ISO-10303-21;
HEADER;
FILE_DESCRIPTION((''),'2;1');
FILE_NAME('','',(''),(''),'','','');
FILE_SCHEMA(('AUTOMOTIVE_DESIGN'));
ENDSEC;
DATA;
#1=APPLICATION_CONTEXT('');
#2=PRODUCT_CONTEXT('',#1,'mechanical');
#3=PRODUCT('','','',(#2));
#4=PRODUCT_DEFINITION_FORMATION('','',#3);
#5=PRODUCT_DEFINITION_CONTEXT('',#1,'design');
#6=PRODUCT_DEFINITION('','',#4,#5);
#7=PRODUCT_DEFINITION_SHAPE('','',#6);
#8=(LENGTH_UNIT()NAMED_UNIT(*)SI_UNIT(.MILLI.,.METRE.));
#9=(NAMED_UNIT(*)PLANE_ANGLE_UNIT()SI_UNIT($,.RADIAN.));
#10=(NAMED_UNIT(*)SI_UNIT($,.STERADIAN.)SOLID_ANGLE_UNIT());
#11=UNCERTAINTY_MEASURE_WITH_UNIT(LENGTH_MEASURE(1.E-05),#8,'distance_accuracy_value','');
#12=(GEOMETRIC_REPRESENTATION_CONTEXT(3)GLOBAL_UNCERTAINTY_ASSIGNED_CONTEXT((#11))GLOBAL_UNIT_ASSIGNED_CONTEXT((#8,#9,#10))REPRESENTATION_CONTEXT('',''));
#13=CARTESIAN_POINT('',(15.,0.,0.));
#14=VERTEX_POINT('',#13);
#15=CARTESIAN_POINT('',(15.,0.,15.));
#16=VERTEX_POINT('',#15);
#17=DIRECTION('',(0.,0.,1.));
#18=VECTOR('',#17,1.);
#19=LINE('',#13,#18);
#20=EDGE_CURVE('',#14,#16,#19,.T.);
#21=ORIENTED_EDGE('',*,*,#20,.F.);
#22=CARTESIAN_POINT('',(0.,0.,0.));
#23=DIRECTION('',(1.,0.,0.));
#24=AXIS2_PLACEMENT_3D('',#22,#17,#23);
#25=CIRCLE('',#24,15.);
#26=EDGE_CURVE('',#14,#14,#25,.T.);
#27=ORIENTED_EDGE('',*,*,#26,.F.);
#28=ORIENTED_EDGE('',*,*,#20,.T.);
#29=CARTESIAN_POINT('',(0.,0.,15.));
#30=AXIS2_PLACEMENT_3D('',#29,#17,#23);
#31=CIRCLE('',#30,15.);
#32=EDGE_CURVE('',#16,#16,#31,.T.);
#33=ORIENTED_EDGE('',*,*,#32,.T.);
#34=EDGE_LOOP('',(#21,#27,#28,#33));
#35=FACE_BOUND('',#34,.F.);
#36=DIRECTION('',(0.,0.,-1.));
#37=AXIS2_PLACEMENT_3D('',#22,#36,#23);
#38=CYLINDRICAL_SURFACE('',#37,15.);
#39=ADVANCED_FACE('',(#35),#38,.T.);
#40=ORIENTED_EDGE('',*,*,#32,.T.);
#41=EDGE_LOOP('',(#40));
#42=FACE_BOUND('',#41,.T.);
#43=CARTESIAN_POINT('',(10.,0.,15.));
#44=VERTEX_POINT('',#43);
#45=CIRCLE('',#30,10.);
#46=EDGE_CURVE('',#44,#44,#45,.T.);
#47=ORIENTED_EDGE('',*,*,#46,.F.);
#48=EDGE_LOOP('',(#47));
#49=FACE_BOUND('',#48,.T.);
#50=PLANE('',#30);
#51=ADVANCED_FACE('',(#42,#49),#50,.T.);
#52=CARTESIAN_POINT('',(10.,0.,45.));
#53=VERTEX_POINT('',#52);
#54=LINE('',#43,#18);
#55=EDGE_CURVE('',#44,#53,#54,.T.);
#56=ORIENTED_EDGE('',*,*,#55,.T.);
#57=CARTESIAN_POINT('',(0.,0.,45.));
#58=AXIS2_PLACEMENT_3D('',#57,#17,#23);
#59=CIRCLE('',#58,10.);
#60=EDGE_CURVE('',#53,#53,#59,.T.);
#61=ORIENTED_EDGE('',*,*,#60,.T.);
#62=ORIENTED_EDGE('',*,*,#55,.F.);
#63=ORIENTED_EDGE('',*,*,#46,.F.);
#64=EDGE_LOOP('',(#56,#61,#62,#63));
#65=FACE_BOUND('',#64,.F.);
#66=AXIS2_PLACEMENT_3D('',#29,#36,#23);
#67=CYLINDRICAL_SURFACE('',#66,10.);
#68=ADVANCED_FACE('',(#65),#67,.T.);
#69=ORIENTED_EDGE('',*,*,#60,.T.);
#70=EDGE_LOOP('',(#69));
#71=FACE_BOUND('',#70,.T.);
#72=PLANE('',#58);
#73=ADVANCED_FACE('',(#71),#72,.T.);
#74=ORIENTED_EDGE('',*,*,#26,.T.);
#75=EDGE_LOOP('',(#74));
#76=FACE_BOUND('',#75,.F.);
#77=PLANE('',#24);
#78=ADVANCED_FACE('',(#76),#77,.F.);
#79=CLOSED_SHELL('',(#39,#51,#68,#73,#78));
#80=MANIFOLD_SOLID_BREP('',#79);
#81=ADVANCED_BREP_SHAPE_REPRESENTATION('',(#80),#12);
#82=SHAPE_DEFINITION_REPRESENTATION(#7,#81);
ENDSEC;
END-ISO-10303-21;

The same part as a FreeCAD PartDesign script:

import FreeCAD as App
import Part
import Sketcher

doc = App.newDocument("Part")
params = doc.addObject("Spreadsheet::Sheet", "Params")
for row, (alias, value) in enumerate([
    ("sketch1_diameter", "30 mm"),
    ("pad1_length", "15 mm"),
    ("sketch2_diameter", "20 mm"),
    ("pad2_length", "30 mm"),
], start=1):
    params.set(f"A{row}", alias)
    params.set(f"B{row}", "=" + value)
    params.setAlias(f"B{row}", alias)

body = doc.addObject("PartDesign::Body", "Body")

# Sketch on XY plane
sketch1 = body.newObject("Sketcher::SketchObject", "Sketch")
sketch1.AttachmentSupport = (doc.getObject("XY_Plane"), [""])
sketch1.MapMode = "FlatFace"
sketch1.addGeometry(Part.Circle(App.Vector(0, 0, 0), App.Vector(0, 0, 1), 15), False)
sketch1.addConstraint([
    Sketcher.Constraint("Coincident", 0, 3, -1, 1),
    Sketcher.Constraint("Diameter", 0, 30.0),
])
sketch1.setExpression("Constraints[1]", "Params.sketch1_diameter")
pad1 = body.newObject("PartDesign::Pad", "Pad")
pad1.Profile = sketch1
pad1.setExpression("Length", "Params.pad1_length")

# Sketch on XY plane
sketch2 = body.newObject("Sketcher::SketchObject", "Sketch001")
sketch2.AttachmentSupport = (doc.getObject("XY_Plane"), [""])
sketch2.MapMode = "FlatFace"
sketch2.AttachmentOffset = App.Placement(App.Vector(0, 0, 15), App.Rotation())
sketch2.addGeometry(Part.Circle(App.Vector(0, 0, 0), App.Vector(0, 0, 1), 10), False)
sketch2.addConstraint([
    Sketcher.Constraint("Coincident", 0, 3, -1, 1),
    Sketcher.Constraint("Diameter", 0, 20.0),
])
sketch2.setExpression("Constraints[1]", "Params.sketch2_diameter")
pad2 = body.newObject("PartDesign::Pad", "Pad001")
pad2.Profile = sketch2
pad2.setExpression("Length", "Params.pad2_length")

doc.recompute()
